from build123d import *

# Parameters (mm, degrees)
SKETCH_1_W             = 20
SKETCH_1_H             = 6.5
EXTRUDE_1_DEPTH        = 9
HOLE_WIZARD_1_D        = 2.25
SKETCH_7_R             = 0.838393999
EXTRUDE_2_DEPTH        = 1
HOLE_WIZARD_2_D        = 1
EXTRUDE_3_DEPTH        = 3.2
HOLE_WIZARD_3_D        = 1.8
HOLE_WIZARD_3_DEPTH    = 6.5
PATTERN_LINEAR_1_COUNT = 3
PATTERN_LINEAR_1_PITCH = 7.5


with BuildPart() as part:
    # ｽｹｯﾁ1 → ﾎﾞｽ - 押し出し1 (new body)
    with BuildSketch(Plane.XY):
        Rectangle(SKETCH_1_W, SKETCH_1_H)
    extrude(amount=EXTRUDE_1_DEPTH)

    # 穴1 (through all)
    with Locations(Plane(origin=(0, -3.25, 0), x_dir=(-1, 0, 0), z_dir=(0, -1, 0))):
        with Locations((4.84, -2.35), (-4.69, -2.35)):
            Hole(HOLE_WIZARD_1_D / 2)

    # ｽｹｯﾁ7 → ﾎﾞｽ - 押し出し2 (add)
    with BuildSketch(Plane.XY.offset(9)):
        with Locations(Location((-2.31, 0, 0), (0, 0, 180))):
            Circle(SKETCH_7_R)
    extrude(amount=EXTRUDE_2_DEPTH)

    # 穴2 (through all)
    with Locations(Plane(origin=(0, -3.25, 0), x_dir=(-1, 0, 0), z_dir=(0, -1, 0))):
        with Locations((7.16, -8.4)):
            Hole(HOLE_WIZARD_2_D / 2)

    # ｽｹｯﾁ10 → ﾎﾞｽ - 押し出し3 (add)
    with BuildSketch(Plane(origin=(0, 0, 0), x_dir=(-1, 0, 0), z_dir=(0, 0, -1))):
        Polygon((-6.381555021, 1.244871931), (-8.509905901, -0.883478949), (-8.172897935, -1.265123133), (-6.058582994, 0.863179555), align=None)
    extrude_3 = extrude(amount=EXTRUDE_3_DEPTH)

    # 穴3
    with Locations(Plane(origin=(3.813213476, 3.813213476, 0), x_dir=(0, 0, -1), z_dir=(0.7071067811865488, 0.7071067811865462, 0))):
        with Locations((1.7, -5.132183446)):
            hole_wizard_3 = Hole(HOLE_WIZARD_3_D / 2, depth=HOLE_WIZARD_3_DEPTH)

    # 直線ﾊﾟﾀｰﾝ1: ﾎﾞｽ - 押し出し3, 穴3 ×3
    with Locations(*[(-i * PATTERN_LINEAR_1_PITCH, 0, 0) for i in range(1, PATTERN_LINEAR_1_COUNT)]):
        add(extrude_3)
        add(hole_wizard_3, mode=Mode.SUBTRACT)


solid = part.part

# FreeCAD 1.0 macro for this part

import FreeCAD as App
import Part
import Sketcher

V = App.Vector
Q = App.Units.Quantity


def add_polygon(sketch, points):
    """Adds a closed chain of lines whose ends are joined by coincident constraints."""
    first, n = sketch.GeometryCount, len(points)
    for a, b in zip(points, points[1:] + points[:1]):
        sketch.addGeometry(Part.LineSegment(App.Vector(*a, 0), App.Vector(*b, 0)), False)
    for i in range(n):
        sketch.addConstraint(Sketcher.Constraint("Coincident", first + i, 2, first + (i + 1) % n, 1))

doc = App.newDocument("Part")
params = doc.addObject("Spreadsheet::Sheet", "Params")
for row, (alias, value) in enumerate([
    ("sketch1_width", "20 mm"),
    ("sketch1_height", "6.5 mm"),
    ("pad1_length", "9 mm"),
    ("sketch2_diameter", "2.25 mm"),
    ("hole_diameter", "2.25 mm"),
    ("pad2_length", "1 mm"),
    ("sketch4_diameter", "1 mm"),
    ("hole2_diameter", "1 mm"),
    ("sketch5_length", "3 mm"),
    ("sketch5_length2", "0.5 mm"),
    ("pad3_length", "3.2 mm"),
    ("sketch6_diameter", "1.8 mm"),
    ("hole3_diameter", "1.8 mm"),
    ("hole3_depth", "6.5 mm"),
    ("linearpattern_pitch", "7.5 mm"),
], start=1):
    params.set(f"A{row}", alias)
    params.set(f"B{row}", "=" + value)
    params.setAlias(f"B{row}", alias)

body = doc.addObject("PartDesign::Body", "Body")

# Sketch on XY plane
sketch1 = body.newObject("Sketcher::SketchObject", "Sketch")
sketch1.AttachmentSupport = (doc.getObject("XY_Plane"), [""])
sketch1.MapMode = "FlatFace"
add_polygon(sketch1, [(-10, 3), (-10, -3), (10, -3), (10, 3)])  # lines 0-3
sketch1.addConstraint(Sketcher.Constraint("Vertical", 0))
sketch1.addConstraint(Sketcher.Constraint("Horizontal", 1))
sketch1.addConstraint(Sketcher.Constraint("Vertical", 2))
sketch1.addConstraint(Sketcher.Constraint("Horizontal", 3))
sketch1.addConstraint(Sketcher.Constraint("Symmetric", 0, 2, 2, 2, -1, 1))
sketch1.addConstraint(Sketcher.Constraint("DistanceX", 1, 1, 1, 2, 20.0))
sketch1.addConstraint(Sketcher.Constraint("DistanceY", 0, 2, 0, 1, 6.5))
sketch1.setExpression("Constraints[9]", "Params.sketch1_width")
sketch1.setExpression("Constraints[10]", "Params.sketch1_height")
pad1 = body.newObject("PartDesign::Pad", "Pad")
pad1.Profile = sketch1
pad1.setExpression("Length", "Params.pad1_length")

# Sketch on XZ plane
sketch2 = body.newObject("Sketcher::SketchObject", "Sketch001")
sketch2.AttachmentSupport = (doc.getObject("XZ_Plane"), [""])
sketch2.MapMode = "FlatFace"
sketch2.AttachmentOffset = App.Placement(V(0, 0, 3.25), App.Rotation())
sketch2.addGeometry(Part.Circle(V(-4.8, 2.4, 0), V(0, 0, 1), 1.1), False)
sketch2.addGeometry(Part.Circle(V(4.7, 2.4, 0), V(0, 0, 1), 1.1), False)
sketch2.addConstraint(Sketcher.Constraint("Equal", 0, 1))
sketch2.addConstraint(Sketcher.Constraint("Horizontal", 0, 3, 1, 3))
sketch2.addConstraint(Sketcher.Constraint("Diameter", 0, 2.25))
sketch2.addConstraint(Sketcher.Constraint("DistanceX", 0, 3, -1, 1, 4.84))
sketch2.addConstraint(Sketcher.Constraint("DistanceY", -1, 1, 0, 3, 2.35))
sketch2.addConstraint(Sketcher.Constraint("DistanceX", -1, 1, 1, 3, 4.69))
sketch2.setExpression("Constraints[2]", "Params.sketch2_diameter")
doc.recompute()
hole = body.newObject("PartDesign::Hole", "Hole")
hole.Profile = sketch2
hole.ThreadType = "None"
hole.setExpression("Diameter", "Params.hole_diameter")
hole.DepthType = "ThroughAll"

# Sketch on XY plane
sketch3 = body.newObject("Sketcher::SketchObject", "Sketch002")
sketch3.AttachmentSupport = (doc.getObject("XY_Plane"), [""])
sketch3.MapMode = "FlatFace"
sketch3.AttachmentOffset = App.Placement(V(0, 0, 9), App.Rotation())
sketch3.addGeometry(Part.Circle(V(-2.3, 0, 0), V(0, 0, 1), 0.8), False)
sketch3.addConstraint(Sketcher.Constraint("PointOnObject", 0, 3, -1))
sketch3.addConstraint(Sketcher.Constraint("DistanceX", 0, 3, -1, 1, 2.31))
sketch3.addConstraint(Sketcher.Constraint("Diameter", 0, 1.676788))
pad2 = body.newObject("PartDesign::Pad", "Pad001")
pad2.Profile = sketch3
pad2.setExpression("Length", "Params.pad2_length")

# Sketch on XZ plane
sketch4 = body.newObject("Sketcher::SketchObject", "Sketch003")
sketch4.AttachmentSupport = (doc.getObject("XZ_Plane"), [""])
sketch4.MapMode = "FlatFace"
sketch4.AttachmentOffset = App.Placement(V(0, 0, 3.25), App.Rotation())
sketch4.addGeometry(Part.Circle(V(-7.2, 8.4, 0), V(0, 0, 1), 0.5), False)
sketch4.addConstraint(Sketcher.Constraint("Diameter", 0, 1.0))
sketch4.addConstraint(Sketcher.Constraint("DistanceY", -1, 1, 0, 3, 8.4))
sketch4.addConstraint(Sketcher.Constraint("DistanceX", 0, 3, -1, 1, 7.16))
sketch4.setExpression("Constraints[0]", "Params.sketch4_diameter")
doc.recompute()
hole2 = body.newObject("PartDesign::Hole", "Hole001")
hole2.Profile = sketch4
hole2.ThreadType = "None"
hole2.setExpression("Diameter", "Params.hole2_diameter")
hole2.DepthType = "ThroughAll"

# Sketch on XY plane
sketch5 = body.newObject("Sketcher::SketchObject", "Sketch004")
sketch5.AttachmentSupport = (doc.getObject("XY_Plane"), [""])
sketch5.MapMode = "FlatFace"
add_polygon(sketch5, [(6.4, 1.2), (8.5, -0.9), (8.2, -1.3), (6.1, 0.9)])  # lines 0-3
sketch5.addConstraint(Sketcher.Constraint("Angle", 0, Q("-45 deg")))
sketch5.addConstraint(Sketcher.Constraint("Distance", 2, 3.0))
sketch5.addConstraint(Sketcher.Constraint("Distance", 3, 0.5))
sketch5.addConstraint(Sketcher.Constraint("DistanceY", 0, 2, -1, 1, 0.883479))
sketch5.addConstraint(Sketcher.Constraint("DistanceY", -1, 1, 2, 2, 0.86318))
sketch5.addConstraint(Sketcher.Constraint("DistanceY", -1, 1, 3, 2, 1.244872))
sketch5.addConstraint(Sketcher.Constraint("Distance", 1, 0.509143))
sketch5.addConstraint(Sketcher.Constraint("DistanceX", -1, 1, 0, 2, 8.509906))
sketch5.setExpression("Constraints[5]", "Params.sketch5_length")
sketch5.setExpression("Constraints[6]", "Params.sketch5_length2")
pad3 = body.newObject("PartDesign::Pad", "Pad002")
pad3.Profile = sketch5
pad3.setExpression("Length", "Params.pad3_length")
pad3.Reversed = True

# Sketch on an angled plane
sketch6 = body.newObject("Sketcher::SketchObject", "Sketch005")
sketch6.Placement = App.Placement(V(3.813213, 3.813213, 0), App.Rotation(V(0, 0, -1), V(-0.707106781, 0.707106781, 0), V(0.707106781, 0.707106781, 0), "ZXY"))
sketch6.addGeometry(Part.Circle(V(1.7, -5.1, 0), V(0, 0, 1), 0.9), False)
sketch6.addConstraint(Sketcher.Constraint("Diameter", 0, 1.8))
sketch6.addConstraint(Sketcher.Constraint("DistanceX", -1, 1, 0, 3, 1.7))
sketch6.addConstraint(Sketcher.Constraint("DistanceY", 0, 3, -1, 1, 5.132183))
sketch6.setExpression("Constraints[0]", "Params.sketch6_diameter")
doc.recompute()
hole3 = body.newObject("PartDesign::Hole", "Hole002")
hole3.Profile = sketch6
hole3.ThreadType = "None"
hole3.setExpression("Diameter", "Params.hole3_diameter")
hole3.DepthType = "Dimension"
hole3.setExpression("Depth", "Params.hole3_depth")
hole3.DrillPoint = "Flat"
doc.recompute()

linearpattern = body.newObject("PartDesign::LinearPattern", "LinearPattern")
linearpattern.Originals = [pad3, hole3]
linearpattern.Direction = (doc.getObject("X_Axis"), [""])
linearpattern.Mode = "offset"
linearpattern.setExpression("Offset", "Params.linearpattern_pitch")
linearpattern.Occurrences = 3
linearpattern.Reversed = True
body.Tip = linearpattern

doc.recompute()
